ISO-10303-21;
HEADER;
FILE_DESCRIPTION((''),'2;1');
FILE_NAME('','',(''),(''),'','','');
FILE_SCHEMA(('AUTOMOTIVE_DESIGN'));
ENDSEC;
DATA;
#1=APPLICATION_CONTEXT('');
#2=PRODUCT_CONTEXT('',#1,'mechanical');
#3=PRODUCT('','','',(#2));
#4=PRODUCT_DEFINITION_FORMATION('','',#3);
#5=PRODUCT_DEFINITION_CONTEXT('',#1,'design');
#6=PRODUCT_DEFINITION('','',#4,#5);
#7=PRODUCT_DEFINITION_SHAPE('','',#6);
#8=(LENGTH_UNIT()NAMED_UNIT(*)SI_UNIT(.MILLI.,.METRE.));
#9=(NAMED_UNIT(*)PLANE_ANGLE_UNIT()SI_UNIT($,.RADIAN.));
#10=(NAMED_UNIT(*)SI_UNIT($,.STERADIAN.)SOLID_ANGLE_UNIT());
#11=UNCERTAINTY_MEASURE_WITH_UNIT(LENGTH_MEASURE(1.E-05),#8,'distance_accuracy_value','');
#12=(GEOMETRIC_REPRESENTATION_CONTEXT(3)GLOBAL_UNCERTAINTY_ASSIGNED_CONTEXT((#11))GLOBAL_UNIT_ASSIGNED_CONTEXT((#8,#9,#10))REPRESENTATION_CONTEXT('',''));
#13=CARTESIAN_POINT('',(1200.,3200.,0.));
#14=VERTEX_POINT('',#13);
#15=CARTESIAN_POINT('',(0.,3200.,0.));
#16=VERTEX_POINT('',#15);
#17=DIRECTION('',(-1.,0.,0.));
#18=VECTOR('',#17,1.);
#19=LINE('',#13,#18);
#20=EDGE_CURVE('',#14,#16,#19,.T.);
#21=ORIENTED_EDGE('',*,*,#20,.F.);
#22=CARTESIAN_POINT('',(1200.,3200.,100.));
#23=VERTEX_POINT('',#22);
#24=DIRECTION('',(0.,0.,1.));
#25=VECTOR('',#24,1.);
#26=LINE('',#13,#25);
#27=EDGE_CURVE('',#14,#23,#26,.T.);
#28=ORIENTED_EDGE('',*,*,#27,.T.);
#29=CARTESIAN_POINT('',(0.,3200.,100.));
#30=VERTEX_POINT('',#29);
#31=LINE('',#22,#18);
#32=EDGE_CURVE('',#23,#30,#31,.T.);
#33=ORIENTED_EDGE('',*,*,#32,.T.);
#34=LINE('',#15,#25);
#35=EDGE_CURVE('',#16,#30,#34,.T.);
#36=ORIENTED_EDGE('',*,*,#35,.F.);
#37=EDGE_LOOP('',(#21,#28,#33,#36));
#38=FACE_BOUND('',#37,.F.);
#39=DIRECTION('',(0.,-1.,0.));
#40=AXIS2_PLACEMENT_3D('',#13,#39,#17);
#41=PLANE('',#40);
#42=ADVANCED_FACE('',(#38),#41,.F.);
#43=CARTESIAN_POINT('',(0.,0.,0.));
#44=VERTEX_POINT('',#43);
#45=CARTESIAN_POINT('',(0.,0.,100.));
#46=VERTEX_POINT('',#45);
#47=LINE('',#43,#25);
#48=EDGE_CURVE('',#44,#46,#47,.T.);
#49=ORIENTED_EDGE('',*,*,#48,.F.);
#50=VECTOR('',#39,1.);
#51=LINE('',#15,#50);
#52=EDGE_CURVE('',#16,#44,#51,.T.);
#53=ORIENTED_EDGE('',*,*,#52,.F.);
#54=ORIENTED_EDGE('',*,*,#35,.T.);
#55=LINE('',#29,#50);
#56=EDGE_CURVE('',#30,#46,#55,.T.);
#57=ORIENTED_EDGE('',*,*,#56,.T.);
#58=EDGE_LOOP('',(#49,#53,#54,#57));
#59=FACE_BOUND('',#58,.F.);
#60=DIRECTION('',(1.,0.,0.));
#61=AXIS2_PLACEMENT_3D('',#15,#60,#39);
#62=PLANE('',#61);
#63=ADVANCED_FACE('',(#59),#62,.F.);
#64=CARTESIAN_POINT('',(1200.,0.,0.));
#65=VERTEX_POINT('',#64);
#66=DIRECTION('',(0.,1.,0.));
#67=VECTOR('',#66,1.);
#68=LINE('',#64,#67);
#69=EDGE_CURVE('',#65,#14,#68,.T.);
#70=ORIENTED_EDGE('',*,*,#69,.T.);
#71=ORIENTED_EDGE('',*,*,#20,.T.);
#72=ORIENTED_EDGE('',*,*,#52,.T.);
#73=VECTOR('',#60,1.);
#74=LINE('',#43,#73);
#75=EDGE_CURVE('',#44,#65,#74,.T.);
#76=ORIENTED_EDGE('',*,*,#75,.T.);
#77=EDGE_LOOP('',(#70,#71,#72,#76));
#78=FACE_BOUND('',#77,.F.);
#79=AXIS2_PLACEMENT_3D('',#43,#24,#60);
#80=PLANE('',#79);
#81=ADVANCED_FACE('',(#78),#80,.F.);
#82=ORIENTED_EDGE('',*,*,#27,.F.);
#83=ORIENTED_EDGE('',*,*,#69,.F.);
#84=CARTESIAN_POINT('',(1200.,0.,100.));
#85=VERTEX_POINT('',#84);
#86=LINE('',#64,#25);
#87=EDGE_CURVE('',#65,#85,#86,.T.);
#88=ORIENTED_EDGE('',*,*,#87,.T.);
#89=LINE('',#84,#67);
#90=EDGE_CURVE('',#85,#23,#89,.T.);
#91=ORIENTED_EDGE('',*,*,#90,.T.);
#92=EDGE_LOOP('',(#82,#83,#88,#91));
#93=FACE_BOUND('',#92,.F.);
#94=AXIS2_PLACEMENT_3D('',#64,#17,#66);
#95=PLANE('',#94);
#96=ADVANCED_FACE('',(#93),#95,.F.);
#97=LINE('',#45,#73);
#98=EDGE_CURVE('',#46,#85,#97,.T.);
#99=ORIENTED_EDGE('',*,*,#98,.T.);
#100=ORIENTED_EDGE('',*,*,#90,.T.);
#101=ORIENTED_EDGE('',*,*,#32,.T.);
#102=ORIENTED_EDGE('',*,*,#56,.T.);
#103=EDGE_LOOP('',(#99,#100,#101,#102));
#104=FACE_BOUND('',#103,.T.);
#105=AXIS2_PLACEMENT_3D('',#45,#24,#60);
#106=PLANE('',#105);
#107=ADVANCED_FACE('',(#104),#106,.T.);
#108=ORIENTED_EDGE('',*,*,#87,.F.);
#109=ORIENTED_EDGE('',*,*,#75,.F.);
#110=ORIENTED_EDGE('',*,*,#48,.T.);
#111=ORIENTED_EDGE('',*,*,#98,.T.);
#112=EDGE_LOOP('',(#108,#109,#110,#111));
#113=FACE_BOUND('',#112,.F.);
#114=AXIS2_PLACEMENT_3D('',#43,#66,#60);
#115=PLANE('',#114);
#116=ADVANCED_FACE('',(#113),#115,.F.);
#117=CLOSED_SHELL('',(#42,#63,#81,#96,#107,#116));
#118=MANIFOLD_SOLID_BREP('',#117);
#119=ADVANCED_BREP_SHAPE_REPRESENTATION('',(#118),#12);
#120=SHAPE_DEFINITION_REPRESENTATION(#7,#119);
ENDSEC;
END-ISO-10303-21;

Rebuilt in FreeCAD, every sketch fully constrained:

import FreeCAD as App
import Part
import Sketcher

doc = App.newDocument("Part")
body = doc.addObject("PartDesign::Body", "Body")

sketch1 = body.newObject("Sketcher::SketchObject", "Sketch")
sketch1.AttachmentSupport = (doc.getObject("XY_Plane"), [""])
sketch1.MapMode = "FlatFace"
sketch1.addGeometry(Part.LineSegment(App.Vector(0, 3200, 0), App.Vector(0, 0, 0)), False)
sketch1.addGeometry(Part.LineSegment(App.Vector(0, 0, 0), App.Vector(1200, 0, 0)), False)
sketch1.addGeometry(Part.LineSegment(App.Vector(1200, 0, 0), App.Vector(1200, 3200, 0)), False)
sketch1.addGeometry(Part.LineSegment(App.Vector(1200, 3200, 0), App.Vector(0, 3200, 0)), False)
sketch1.addConstraint(Sketcher.Constraint("Coincident", 0, 2, 1, 1))
sketch1.addConstraint(Sketcher.Constraint("Coincident", 1, 2, 2, 1))
sketch1.addConstraint(Sketcher.Constraint("Coincident", 2, 2, 3, 1))
sketch1.addConstraint(Sketcher.Constraint("Coincident", 3, 2, 0, 1))
sketch1.addConstraint(Sketcher.Constraint("Vertical", 0))
sketch1.addConstraint(Sketcher.Constraint("Horizontal", 1))
sketch1.addConstraint(Sketcher.Constraint("Vertical", 2))
sketch1.addConstraint(Sketcher.Constraint("Horizontal", 3))
sketch1.addConstraint(Sketcher.Constraint("Coincident", 0, 2, -1, 1))
sketch1.addConstraint(Sketcher.Constraint("DistanceX", 1, 1, 1, 2, 1200.0))
sketch1.addConstraint(Sketcher.Constraint("DistanceY", 0, 2, 0, 1, 3200.0))
pad1 = body.newObject("PartDesign::Pad", "Pad")
pad1.Profile = sketch1
pad1.Length = 100

doc.recompute()
